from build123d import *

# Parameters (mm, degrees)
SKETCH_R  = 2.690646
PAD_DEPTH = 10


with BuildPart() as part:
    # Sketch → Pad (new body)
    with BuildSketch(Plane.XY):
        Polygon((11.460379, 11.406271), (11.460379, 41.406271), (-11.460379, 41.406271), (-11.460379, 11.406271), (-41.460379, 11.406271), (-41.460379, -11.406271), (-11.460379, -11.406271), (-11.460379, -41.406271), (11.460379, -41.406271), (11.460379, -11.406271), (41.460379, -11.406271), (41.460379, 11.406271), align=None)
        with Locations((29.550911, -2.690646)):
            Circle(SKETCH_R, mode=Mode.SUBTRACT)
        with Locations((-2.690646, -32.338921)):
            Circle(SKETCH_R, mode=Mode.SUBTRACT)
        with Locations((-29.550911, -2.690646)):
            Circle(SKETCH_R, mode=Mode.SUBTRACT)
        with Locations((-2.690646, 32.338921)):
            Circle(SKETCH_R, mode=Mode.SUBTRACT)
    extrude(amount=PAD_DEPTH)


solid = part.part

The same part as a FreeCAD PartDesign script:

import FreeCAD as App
import Part
import Sketcher

V = App.Vector


def add_polygon(sketch, points):
    """Adds a closed chain of lines whose ends are joined by coincident constraints."""
    first, n = sketch.GeometryCount, len(points)
    for a, b in zip(points, points[1:] + points[:1]):
        sketch.addGeometry(Part.LineSegment(App.Vector(*a, 0), App.Vector(*b, 0)), False)
    for i in range(n):
        sketch.addConstraint(Sketcher.Constraint("Coincident", first + i, 2, first + (i + 1) % n, 1))

doc = App.newDocument("Part")
body = doc.addObject("PartDesign::Body", "Body")

sketch1 = doc.addObject("Sketcher::SketchObject", "Sketch")
body.addObject(sketch1)
sketch1.AttachmentSupport = (doc.XY_Plane, [""])
sketch1.MapMode = "FlatFace"
add_polygon(sketch1, [(11.5, 11.4), (11.5, 41.4), (-11.5, 41.4), (-11.5, 11.4), (-41.5, 11.4), (-41.5, -11.4), (-11.5, -11.4), (-11.5, -41.4), (11.5, -41.4), (11.5, -11.4), (41.5, -11.4), (41.5, 11.4)])
sketch1.addGeometry(Part.Circle(V(-2.7, -32.3, 0), V(0, 0, 1), 2.7), False)
sketch1.addGeometry(Part.Circle(V(-29.6, -2.7, 0), V(0, 0, 1), 2.7), False)
sketch1.addGeometry(Part.Circle(V(29.6, -2.7, 0), V(0, 0, 1), 2.7), False)
sketch1.addGeometry(Part.Circle(V(-2.7, 32.3, 0), V(0, 0, 1), 2.7), False)
sketch1.addConstraint(Sketcher.Constraint("Vertical", 0))
sketch1.addConstraint(Sketcher.Constraint("Horizontal", 1))
sketch1.addConstraint(Sketcher.Constraint("Vertical", 2))
sketch1.addConstraint(Sketcher.Constraint("Horizontal", 3))
sketch1.addConstraint(Sketcher.Constraint("Vertical", 4))
sketch1.addConstraint(Sketcher.Constraint("Horizontal", 5))
sketch1.addConstraint(Sketcher.Constraint("Vertical", 6))
sketch1.addConstraint(Sketcher.Constraint("Horizontal", 7))
sketch1.addConstraint(Sketcher.Constraint("Vertical", 8))
sketch1.addConstraint(Sketcher.Constraint("Horizontal", 9))
sketch1.addConstraint(Sketcher.Constraint("Vertical", 10))
sketch1.addConstraint(Sketcher.Constraint("Horizontal", 11))
sketch1.addConstraint(Sketcher.Constraint("Equal", 12, 13))
sketch1.addConstraint(Sketcher.Constraint("Equal", 13, 14))
sketch1.addConstraint(Sketcher.Constraint("Equal", 14, 15))
sketch1.addConstraint(Sketcher.Constraint("Symmetric", 0, 2, 6, 2, -1, 1))
sketch1.addConstraint(Sketcher.Constraint("Symmetric", 2, 2, 8, 2, -1, 1))
sketch1.addConstraint(Sketcher.Constraint("Symmetric", 4, 2, 10, 2, -1, 1))
sketch1.addConstraint(Sketcher.Constraint("Symmetric", 13, 3, 14, 3, -2))
sketch1.addConstraint(Sketcher.Constraint("Symmetric", 5, 2, 8, 2, -2))
sketch1.addConstraint(Sketcher.Constraint("Symmetric", 12, 3, 15, 3, -1))
sketch1.addConstraint(Sketcher.Constraint("Equal", 11, 0))
sketch1.addConstraint(Sketcher.Constraint("DistanceX", 3, 2, 3, 1, 30.0))
sketch1.addConstraint(Sketcher.Constraint("Diameter", 12, 5.381292))
sketch1.addConstraint(Sketcher.Constraint("DistanceX", 1, 2, 1, 1, 22.920758))
sketch1.addConstraint(Sketcher.Constraint("DistanceY", 4, 2, 4, 1, 22.812542))
sketch1.addConstraint(Sketcher.Constraint("DistanceY", 12, 3, -1, 1, 32.338921))
sketch1.addConstraint(Sketcher.Constraint("DistanceX", 13, 3, -1, 1, 29.550911))
sketch1.addConstraint(Sketcher.Constraint("DistanceX", 12, 3, -1, 1, 2.690646))
sketch1.addConstraint(Sketcher.Constraint("DistanceY", 13, 3, -1, 1, 2.690646))
pad1 = doc.addObject("PartDesign::Pad", "Pad")
body.addObject(pad1)
pad1.Profile = sketch1
pad1.Length = 10

doc.recompute()
